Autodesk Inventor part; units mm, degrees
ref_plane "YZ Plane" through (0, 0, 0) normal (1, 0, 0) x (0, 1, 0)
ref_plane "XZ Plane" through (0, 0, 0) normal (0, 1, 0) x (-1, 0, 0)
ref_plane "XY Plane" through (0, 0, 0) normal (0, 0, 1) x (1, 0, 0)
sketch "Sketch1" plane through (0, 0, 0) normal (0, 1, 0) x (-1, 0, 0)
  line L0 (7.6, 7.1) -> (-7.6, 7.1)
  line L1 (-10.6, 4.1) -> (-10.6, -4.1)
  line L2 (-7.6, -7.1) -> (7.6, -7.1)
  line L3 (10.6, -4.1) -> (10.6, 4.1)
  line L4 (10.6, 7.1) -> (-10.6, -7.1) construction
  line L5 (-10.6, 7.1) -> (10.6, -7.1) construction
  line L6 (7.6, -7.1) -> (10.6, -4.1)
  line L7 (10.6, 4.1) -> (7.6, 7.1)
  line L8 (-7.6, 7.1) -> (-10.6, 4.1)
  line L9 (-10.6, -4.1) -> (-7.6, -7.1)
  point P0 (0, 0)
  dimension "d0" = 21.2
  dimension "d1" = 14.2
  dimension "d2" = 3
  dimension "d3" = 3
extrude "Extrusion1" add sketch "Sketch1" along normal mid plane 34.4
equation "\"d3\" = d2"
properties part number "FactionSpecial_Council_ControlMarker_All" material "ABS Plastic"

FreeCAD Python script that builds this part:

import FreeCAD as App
import Part
import Sketcher
from FreeCAD import Vector


def add_polygon(sketch, points):
    """Adds a closed chain of lines whose ends are joined by coincident constraints."""
    first, n = sketch.GeometryCount, len(points)
    for a, b in zip(points, points[1:] + points[:1]):
        sketch.addGeometry(Part.LineSegment(App.Vector(*a, 0), App.Vector(*b, 0)), False)
    for i in range(n):
        sketch.addConstraint(Sketcher.Constraint("Coincident", first + i, 2, first + (i + 1) % n, 1))

doc = App.newDocument("Part")
params = doc.addObject("Spreadsheet::Sheet", "Params")
for row, (alias, value) in enumerate([
    ("pad1_length", "34.4 mm"),
], start=1):
    params.set(f"A{row}", alias)
    params.set(f"B{row}", "=" + value)
    params.setAlias(f"B{row}", alias)

body = doc.addObject("PartDesign::Body", "Body")

# Sketch on XZ plane
sketch1 = body.newObject("Sketcher::SketchObject", "Sketch")
sketch1.AttachmentSupport = (doc.getObject("XZ_Plane"), [""])
sketch1.MapMode = "FlatFace"
add_polygon(sketch1, [(-10.6, 4.1), (-7.6, 7.1), (7.6, 7.1), (10.6, 4.1), (10.6, -4.1), (7.6, -7.1), (-7.6, -7.1), (-10.6, -4.1)])  # lines 0-7
sketch1.addConstraint([
    Sketcher.Constraint("Horizontal", 1),
    Sketcher.Constraint("Vertical", 3),
    Sketcher.Constraint("Horizontal", 5),
    Sketcher.Constraint("Vertical", 7),
    Sketcher.Constraint("Symmetric", 0, 2, 4, 2, -1, 1),
    Sketcher.Constraint("Symmetric", 2, 2, 6, 2, -1, 1),
    Sketcher.Constraint("Perpendicular", 0, 2),
    Sketcher.Constraint("Perpendicular", 2, 4),
    Sketcher.Constraint("Perpendicular", 4, 6),
    Sketcher.Constraint("Horizontal", 3, 2, 6, 2),
    Sketcher.Constraint("Vertical", 1, 2, 4, 2),
    Sketcher.Constraint("DistanceX", 1, 2, 2, 2, 3.0),
    Sketcher.Constraint("DistanceY", 4, 2, 1, 2, 14.2),
    Sketcher.Constraint("DistanceX", 6, 2, 3, 2, 21.2),
])
pad1 = body.newObject("PartDesign::Pad", "Pad")
pad1.Profile = sketch1
pad1.setExpression("Length", "Params.pad1_length")
pad1.Midplane = True

doc.recompute()
